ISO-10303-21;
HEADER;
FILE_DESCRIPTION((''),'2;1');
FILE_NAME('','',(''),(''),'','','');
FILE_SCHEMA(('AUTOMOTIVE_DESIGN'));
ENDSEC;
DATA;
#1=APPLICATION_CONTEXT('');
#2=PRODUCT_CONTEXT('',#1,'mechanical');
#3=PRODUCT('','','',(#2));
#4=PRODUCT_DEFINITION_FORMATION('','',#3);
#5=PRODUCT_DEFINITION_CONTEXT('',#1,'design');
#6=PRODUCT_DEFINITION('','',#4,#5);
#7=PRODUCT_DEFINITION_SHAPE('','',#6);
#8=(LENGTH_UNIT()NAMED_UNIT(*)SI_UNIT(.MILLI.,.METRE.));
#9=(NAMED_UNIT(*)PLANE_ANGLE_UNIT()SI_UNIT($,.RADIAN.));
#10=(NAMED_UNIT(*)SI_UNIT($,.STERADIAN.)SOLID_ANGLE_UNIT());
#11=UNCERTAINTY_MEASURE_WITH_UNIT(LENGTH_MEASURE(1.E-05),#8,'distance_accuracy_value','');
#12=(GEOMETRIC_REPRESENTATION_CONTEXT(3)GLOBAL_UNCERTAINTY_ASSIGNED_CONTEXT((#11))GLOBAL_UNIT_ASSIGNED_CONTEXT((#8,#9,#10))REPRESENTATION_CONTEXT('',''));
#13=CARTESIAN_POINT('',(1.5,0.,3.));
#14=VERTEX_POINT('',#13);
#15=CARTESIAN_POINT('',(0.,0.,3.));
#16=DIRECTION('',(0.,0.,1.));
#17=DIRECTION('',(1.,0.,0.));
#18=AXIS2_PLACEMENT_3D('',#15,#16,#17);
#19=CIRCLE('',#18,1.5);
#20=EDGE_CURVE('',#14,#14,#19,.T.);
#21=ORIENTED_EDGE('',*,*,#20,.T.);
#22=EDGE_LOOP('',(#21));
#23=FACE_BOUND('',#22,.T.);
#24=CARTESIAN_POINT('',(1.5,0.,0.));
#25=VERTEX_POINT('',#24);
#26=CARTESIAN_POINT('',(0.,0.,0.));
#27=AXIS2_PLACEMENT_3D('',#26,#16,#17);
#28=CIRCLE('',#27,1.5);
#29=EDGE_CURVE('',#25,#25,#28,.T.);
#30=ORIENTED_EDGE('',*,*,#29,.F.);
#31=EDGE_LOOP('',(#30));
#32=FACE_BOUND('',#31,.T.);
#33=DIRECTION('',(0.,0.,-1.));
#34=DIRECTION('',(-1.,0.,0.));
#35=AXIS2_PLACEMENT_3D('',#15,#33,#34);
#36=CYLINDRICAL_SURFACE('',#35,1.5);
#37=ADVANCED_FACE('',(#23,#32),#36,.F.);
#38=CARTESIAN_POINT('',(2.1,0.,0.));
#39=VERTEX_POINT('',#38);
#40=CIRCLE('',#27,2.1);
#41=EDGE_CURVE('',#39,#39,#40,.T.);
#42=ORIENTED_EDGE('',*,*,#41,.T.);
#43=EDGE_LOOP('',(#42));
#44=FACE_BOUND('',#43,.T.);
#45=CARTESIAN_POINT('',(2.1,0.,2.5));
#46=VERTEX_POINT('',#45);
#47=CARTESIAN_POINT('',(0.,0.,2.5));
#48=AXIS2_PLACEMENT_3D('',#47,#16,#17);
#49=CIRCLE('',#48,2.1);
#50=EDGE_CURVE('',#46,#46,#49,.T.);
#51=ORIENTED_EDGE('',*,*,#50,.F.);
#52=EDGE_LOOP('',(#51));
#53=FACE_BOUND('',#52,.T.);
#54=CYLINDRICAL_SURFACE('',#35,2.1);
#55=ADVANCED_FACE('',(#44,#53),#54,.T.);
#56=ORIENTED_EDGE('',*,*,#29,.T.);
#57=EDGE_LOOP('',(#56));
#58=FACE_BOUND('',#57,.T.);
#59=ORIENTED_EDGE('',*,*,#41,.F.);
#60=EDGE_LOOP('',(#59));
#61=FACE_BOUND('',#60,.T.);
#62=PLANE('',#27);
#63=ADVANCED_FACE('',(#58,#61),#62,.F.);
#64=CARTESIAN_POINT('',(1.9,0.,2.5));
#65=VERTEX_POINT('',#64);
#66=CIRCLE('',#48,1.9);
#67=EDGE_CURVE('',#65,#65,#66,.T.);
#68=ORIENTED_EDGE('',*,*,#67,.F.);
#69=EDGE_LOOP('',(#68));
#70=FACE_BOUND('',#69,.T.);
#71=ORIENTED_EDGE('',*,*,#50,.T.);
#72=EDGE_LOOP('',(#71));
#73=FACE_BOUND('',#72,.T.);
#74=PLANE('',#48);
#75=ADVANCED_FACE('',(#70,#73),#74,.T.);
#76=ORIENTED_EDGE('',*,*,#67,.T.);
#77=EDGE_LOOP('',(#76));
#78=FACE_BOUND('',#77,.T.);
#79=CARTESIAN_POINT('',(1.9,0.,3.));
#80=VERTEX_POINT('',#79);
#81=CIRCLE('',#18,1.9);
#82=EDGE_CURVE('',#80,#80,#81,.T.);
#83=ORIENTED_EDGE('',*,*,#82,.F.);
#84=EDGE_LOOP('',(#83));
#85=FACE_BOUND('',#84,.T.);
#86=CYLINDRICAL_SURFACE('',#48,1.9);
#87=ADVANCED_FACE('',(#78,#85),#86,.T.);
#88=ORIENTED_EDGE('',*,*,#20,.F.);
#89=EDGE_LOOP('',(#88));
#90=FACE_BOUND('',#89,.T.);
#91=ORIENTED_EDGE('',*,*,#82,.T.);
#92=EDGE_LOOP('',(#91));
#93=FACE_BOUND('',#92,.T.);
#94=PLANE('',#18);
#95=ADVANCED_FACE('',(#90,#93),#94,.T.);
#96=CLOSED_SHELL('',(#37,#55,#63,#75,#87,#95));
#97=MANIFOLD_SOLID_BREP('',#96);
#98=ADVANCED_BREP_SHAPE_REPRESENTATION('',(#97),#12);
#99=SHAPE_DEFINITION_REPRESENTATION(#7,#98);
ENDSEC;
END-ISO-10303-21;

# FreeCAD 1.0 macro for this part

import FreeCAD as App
import Part
import Sketcher

doc = App.newDocument("Part")
params = doc.addObject("Spreadsheet::Sheet", "Params")
for row, (alias, value) in enumerate([
    ("sketch1_diameter", "3 mm"),
    ("sketch1_diameter2", "4.2 mm"),
    ("pad1_length", "3 mm"),
    ("sketch2_diameter", "4.2 mm"),
    ("sketch2_diameter2", "3.8 mm"),
    ("pocket1_length", "0.5 mm"),
], start=1):
    params.set(f"A{row}", alias)
    params.set(f"B{row}", "=" + value)
    params.setAlias(f"B{row}", alias)

body = doc.addObject("PartDesign::Body", "Body")

sketch1 = doc.addObject("Sketcher::SketchObject", "Sketch")
body.addObject(sketch1)
sketch1.AttachmentSupport = (doc.XY_Plane, [""])
sketch1.MapMode = "FlatFace"
sketch1.addGeometry(Part.Circle(App.Vector(0, 0, 0), App.Vector(0, 0, 1), 2.1), False)
sketch1.addGeometry(Part.Circle(App.Vector(0, 0, 0), App.Vector(0, 0, 1), 1.5), False)
sketch1.addConstraint(Sketcher.Constraint("Coincident", 0, 3, -1, 1))
sketch1.addConstraint(Sketcher.Constraint("Coincident", 1, 3, -1, 1))
sketch1.addConstraint(Sketcher.Constraint("Diameter", 1, 3.0))
sketch1.addConstraint(Sketcher.Constraint("Diameter", 0, 4.2))
sketch1.setExpression("Constraints[2]", "Params.sketch1_diameter")
sketch1.setExpression("Constraints[3]", "Params.sketch1_diameter2")
pad1 = doc.addObject("PartDesign::Pad", "Pad")
body.addObject(pad1)
pad1.Profile = sketch1
pad1.setExpression("Length", "Params.pad1_length")

sketch2 = doc.addObject("Sketcher::SketchObject", "Sketch001")
body.addObject(sketch2)
sketch2.AttachmentSupport = (doc.XY_Plane, [""])
sketch2.MapMode = "FlatFace"
sketch2.AttachmentOffset = App.Placement(App.Vector(0, 0, 2.5), App.Rotation())
sketch2.addGeometry(Part.Circle(App.Vector(0, 0, 0), App.Vector(0, 0, 1), 2.1), False)
sketch2.addGeometry(Part.Circle(App.Vector(0, 0, 0), App.Vector(0, 0, 1), 1.9), False)
sketch2.addConstraint(Sketcher.Constraint("Coincident", 0, 3, -1, 1))
sketch2.addConstraint(Sketcher.Constraint("Coincident", 1, 3, -1, 1))
sketch2.addConstraint(Sketcher.Constraint("Diameter", 0, 4.2))
sketch2.addConstraint(Sketcher.Constraint("Diameter", 1, 3.8))
sketch2.setExpression("Constraints[2]", "Params.sketch2_diameter")
sketch2.setExpression("Constraints[3]", "Params.sketch2_diameter2")
pocket1 = doc.addObject("PartDesign::Pocket", "Pocket")
body.addObject(pocket1)
pocket1.Profile = sketch2
pocket1.setExpression("Length", "Params.pocket1_length")
pocket1.Reversed = True

doc.recompute()
